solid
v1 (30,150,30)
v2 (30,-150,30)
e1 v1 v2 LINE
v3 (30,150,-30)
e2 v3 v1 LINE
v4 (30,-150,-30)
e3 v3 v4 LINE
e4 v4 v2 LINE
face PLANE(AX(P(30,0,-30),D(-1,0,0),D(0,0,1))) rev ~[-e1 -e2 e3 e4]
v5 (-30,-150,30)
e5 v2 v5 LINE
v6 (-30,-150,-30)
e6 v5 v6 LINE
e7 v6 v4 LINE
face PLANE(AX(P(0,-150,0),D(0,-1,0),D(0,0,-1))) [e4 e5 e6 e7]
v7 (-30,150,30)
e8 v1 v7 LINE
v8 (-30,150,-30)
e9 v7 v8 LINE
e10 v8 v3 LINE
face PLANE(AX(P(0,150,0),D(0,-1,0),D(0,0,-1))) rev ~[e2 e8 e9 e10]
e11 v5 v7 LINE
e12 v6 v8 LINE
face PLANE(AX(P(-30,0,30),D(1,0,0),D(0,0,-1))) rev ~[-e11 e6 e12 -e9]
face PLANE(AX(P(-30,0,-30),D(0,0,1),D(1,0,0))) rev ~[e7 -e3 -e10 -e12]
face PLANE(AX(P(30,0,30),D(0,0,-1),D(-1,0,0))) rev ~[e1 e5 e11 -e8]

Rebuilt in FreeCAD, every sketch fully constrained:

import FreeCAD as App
import Part
import Sketcher
from FreeCAD import Vector
Q = App.Units.Quantity


def add_polygon(sketch, points):
    """Adds a closed chain of lines whose ends are joined by coincident constraints."""
    first, n = sketch.GeometryCount, len(points)
    for a, b in zip(points, points[1:] + points[:1]):
        sketch.addGeometry(Part.LineSegment(App.Vector(*a, 0), App.Vector(*b, 0)), False)
    for i in range(n):
        sketch.addConstraint(Sketcher.Constraint("Coincident", first + i, 2, first + (i + 1) % n, 1))

doc = App.newDocument("Part")
body = doc.addObject("PartDesign::Body", "Body")

# Sketch on XZ plane
sketch1 = body.newObject("Sketcher::SketchObject", "Sketch")
sketch1.AttachmentSupport = (doc.getObject("XZ_Plane"), [""])
sketch1.MapMode = "FlatFace"
add_polygon(sketch1, [(-30, 30), (-30, -30), (30, -30), (30, 30)])  # lines 0-3
sketch1.addConstraint([
    Sketcher.Constraint("Vertical", 0),
    Sketcher.Constraint("Horizontal", 1),
    Sketcher.Constraint("Vertical", 2),
    Sketcher.Constraint("Horizontal", 3),
    Sketcher.Constraint("Symmetric", 0, 2, 2, 2, -1, 1),
    Sketcher.Constraint("Equal", 3, 0),
    Sketcher.Constraint("DistanceX", 1, 1, 1, 2, Q("60 mm")),
])
pad1 = body.newObject("PartDesign::Pad", "Pad")
pad1.Profile = sketch1
pad1.Length = 300
pad1.Midplane = True

doc.recompute()
